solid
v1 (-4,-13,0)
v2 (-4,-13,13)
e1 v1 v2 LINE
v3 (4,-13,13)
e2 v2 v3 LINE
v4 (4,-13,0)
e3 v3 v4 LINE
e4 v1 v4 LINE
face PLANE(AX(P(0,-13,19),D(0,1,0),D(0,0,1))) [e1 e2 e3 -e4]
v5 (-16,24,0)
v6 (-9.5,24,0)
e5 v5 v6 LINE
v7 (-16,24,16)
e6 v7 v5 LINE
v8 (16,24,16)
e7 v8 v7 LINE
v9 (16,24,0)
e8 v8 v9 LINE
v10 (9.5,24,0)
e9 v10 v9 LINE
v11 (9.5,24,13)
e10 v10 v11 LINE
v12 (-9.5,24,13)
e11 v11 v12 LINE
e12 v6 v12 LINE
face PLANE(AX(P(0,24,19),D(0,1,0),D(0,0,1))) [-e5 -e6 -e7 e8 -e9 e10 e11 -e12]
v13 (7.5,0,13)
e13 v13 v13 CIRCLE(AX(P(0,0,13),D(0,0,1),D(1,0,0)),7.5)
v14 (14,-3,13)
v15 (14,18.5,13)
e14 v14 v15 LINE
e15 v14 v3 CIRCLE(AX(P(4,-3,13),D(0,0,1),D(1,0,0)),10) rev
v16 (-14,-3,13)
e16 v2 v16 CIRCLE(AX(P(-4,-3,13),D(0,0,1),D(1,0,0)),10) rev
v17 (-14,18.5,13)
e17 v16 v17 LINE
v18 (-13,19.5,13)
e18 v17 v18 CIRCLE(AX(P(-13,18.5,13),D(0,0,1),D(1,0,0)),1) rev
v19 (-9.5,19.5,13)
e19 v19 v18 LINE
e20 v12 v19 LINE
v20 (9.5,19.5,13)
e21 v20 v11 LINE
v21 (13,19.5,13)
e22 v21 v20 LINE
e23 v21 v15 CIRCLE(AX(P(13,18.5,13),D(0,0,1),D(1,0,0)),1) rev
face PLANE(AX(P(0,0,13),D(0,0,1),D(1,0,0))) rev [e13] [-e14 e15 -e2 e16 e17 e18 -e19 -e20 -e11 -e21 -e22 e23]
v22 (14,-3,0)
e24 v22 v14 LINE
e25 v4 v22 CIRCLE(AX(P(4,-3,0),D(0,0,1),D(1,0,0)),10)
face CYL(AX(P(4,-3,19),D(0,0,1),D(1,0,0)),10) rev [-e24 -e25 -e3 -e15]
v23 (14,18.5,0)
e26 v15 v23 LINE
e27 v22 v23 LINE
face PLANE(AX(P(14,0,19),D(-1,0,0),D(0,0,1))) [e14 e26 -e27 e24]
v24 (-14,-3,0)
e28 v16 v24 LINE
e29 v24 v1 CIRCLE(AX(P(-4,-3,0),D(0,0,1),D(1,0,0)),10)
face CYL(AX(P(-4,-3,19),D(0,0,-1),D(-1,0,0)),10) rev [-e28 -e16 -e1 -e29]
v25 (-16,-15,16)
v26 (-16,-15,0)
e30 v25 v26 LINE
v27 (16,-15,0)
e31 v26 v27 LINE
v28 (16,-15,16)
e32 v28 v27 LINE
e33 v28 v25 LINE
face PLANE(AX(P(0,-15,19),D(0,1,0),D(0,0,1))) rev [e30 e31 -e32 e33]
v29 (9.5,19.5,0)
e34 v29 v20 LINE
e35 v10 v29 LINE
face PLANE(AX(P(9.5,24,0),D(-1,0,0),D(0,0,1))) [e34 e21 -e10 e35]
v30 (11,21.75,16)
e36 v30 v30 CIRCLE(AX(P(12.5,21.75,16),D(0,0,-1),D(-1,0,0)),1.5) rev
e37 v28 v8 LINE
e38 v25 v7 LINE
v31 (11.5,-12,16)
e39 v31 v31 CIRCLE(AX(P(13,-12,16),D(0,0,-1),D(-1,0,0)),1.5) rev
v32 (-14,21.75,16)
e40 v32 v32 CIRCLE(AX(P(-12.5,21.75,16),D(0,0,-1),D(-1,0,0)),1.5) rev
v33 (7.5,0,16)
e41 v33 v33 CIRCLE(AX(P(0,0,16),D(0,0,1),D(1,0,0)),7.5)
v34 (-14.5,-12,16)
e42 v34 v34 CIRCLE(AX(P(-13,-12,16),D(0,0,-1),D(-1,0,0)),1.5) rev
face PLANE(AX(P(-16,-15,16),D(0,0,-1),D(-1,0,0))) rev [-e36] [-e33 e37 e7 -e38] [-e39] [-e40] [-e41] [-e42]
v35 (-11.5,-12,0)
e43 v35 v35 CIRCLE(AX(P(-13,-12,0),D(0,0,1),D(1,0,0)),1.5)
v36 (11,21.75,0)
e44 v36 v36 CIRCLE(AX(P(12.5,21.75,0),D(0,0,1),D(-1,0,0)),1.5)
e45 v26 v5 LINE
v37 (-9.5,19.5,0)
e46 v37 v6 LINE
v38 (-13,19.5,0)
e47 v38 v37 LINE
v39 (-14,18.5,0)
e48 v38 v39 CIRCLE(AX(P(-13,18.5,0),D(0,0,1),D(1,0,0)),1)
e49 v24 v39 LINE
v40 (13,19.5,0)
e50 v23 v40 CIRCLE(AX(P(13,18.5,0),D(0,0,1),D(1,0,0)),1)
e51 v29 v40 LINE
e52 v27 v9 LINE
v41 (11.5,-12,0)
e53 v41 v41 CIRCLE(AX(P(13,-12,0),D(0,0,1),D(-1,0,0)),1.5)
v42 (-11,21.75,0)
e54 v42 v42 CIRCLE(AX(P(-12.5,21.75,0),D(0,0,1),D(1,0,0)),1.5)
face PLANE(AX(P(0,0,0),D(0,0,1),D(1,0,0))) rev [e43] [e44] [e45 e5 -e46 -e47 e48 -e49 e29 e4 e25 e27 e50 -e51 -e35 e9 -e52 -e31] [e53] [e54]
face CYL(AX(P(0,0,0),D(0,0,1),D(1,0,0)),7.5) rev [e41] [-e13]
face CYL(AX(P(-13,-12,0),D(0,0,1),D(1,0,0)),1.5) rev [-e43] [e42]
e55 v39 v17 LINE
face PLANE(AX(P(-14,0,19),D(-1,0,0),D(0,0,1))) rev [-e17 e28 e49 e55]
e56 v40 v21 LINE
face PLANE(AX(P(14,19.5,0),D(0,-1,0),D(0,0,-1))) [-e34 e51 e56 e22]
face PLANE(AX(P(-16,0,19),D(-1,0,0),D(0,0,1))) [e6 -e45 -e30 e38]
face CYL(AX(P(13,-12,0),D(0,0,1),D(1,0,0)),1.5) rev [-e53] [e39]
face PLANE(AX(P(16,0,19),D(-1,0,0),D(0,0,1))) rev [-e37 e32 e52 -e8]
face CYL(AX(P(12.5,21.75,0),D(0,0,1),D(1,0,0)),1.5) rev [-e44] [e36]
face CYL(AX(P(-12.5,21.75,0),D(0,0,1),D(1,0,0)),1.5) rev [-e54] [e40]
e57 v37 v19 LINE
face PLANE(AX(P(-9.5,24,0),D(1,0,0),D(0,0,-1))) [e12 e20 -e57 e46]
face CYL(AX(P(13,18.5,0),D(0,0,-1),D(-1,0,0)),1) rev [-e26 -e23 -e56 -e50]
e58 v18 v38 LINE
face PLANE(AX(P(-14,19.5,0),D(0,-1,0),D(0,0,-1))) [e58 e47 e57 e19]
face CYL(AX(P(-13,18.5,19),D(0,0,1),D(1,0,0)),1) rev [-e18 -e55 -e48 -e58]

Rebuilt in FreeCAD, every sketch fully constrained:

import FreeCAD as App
import Part
import Sketcher


def edges_at(feature, points):
    """Names of the edges that pass closest to the given points."""
    edges = feature.Shape.Edges
    near = lambda p: min(range(len(edges)), key=lambda i: edges[i].distToShape(Part.Vertex(*p))[0])
    return sorted({f"Edge{near(p) + 1}" for p in points})

doc = App.newDocument("Part")
params = doc.addObject("Spreadsheet::Sheet", "Params")
for row, (alias, value) in enumerate([
    ("sketch1_width", "32 mm"),
    ("sketch1_width2", "2 mm"),
    ("sketch1_height", "39 mm"),
    ("sketch1_height2", "37 mm"),
    ("pad1_length", "19 mm"),
    ("sketch2_width", "4.5 mm"),
    ("pad2_length", "19 mm"),
    ("fillet_radius", "10 mm"),
    ("fillet2_radius", "10 mm"),
    ("fillet3_radius", "1 mm"),
    ("sketch3_diameter", "3 mm"),
    ("pocket1_length", "19 mm"),
    ("sketch4_width", "32 mm"),
    ("sketch4_height", "3 mm"),
    ("sketch5_diameter", "3 mm"),
    ("sketch5_width", "32 mm"),
    ("sketch5_height", "39 mm"),
    ("pad3_length", "3 mm"),
    ("sketch6_diameter", "15 mm"),
], start=1):
    params.set(f"A{row}", alias)
    params.set(f"B{row}", "=" + value)
    params.setAlias(f"B{row}", alias)

body = doc.addObject("PartDesign::Body", "Body")

# Sketch on XY plane
sketch1 = doc.addObject("Sketcher::SketchObject", "Sketch")
body.addObject(sketch1)
sketch1.AttachmentSupport = (doc.XY_Plane, [""])
sketch1.MapMode = "FlatFace"
sketch1.addGeometry([
    Part.LineSegment(App.Vector(-16, 24, 0), App.Vector(-16, -15, 0)),  # 0
    Part.LineSegment(App.Vector(-16, -15, 0), App.Vector(16, -15, 0)),  # 1
    Part.LineSegment(App.Vector(16, -15, 0), App.Vector(16, 24, 0)),  # 2
    Part.LineSegment(App.Vector(16, 24, 0), App.Vector(14, 24, 0)),  # 3
    Part.LineSegment(App.Vector(14, 24, 0), App.Vector(14, -13, 0)),  # 4
    Part.LineSegment(App.Vector(14, -13, 0), App.Vector(-14, -13, 0)),  # 5
    Part.LineSegment(App.Vector(-14, -13, 0), App.Vector(-14, 24, 0)),  # 6
    Part.LineSegment(App.Vector(-14, 24, 0), App.Vector(-16, 24, 0)),  # 7
], False)
sketch1.addConstraint([
    Sketcher.Constraint("Coincident", 0, 2, 1, 1),
    Sketcher.Constraint("Coincident", 1, 2, 2, 1),
    Sketcher.Constraint("Coincident", 2, 2, 3, 1),
    Sketcher.Constraint("Coincident", 3, 2, 4, 1),
    Sketcher.Constraint("Coincident", 4, 2, 5, 1),
    Sketcher.Constraint("Coincident", 5, 2, 6, 1),
    Sketcher.Constraint("Coincident", 6, 2, 7, 1),
    Sketcher.Constraint("Coincident", 7, 2, 0, 1),
    Sketcher.Constraint("Vertical", 0),
    Sketcher.Constraint("Horizontal", 1),
    Sketcher.Constraint("Vertical", 2),
    Sketcher.Constraint("Horizontal", 3),
    Sketcher.Constraint("Vertical", 4),
    Sketcher.Constraint("Horizontal", 5),
    Sketcher.Constraint("Vertical", 6),
    Sketcher.Constraint("Horizontal", 7),
    Sketcher.Constraint("Symmetric", 3, 2, 6, 2, -2),
    Sketcher.Constraint("Equal", 3, 7),
    Sketcher.Constraint("DistanceX", 1, 1, 1, 2, 32.0),
    Sketcher.Constraint("DistanceX", 3, 2, 3, 1, 2.0),
    Sketcher.Constraint("DistanceY", 0, 2, 0, 1, 39.0),
    Sketcher.Constraint("DistanceY", 4, 2, 4, 1, 37.0),
    Sketcher.Constraint("DistanceY", 0, 2, -1, 1, 15.0),
])
sketch1.setExpression("Constraints[18]", "Params.sketch1_width")
sketch1.setExpression("Constraints[19]", "Params.sketch1_width2")
sketch1.setExpression("Constraints[20]", "Params.sketch1_height")
sketch1.setExpression("Constraints[21]", "Params.sketch1_height2")
pad1 = doc.addObject("PartDesign::Pad", "Pad")
body.addObject(pad1)
pad1.Profile = sketch1
pad1.setExpression("Length", "Params.pad1_length")

# Sketch on XY plane
sketch2 = doc.addObject("Sketcher::SketchObject", "Sketch001")
body.addObject(sketch2)
sketch2.AttachmentSupport = (doc.XY_Plane, [""])
sketch2.MapMode = "FlatFace"
sketch2.AttachmentOffset = App.Placement(App.Vector(0, 0, 19), App.Rotation())
sketch2.addGeometry([
    Part.LineSegment(App.Vector(-14, 24, 0), App.Vector(-14, 19.5, 0)),  # 0
    Part.LineSegment(App.Vector(-14, 19.5, 0), App.Vector(-9.5, 19.5, 0)),  # 1
    Part.LineSegment(App.Vector(-9.5, 19.5, 0), App.Vector(-9.5, 24, 0)),  # 2
    Part.LineSegment(App.Vector(-9.5, 24, 0), App.Vector(-14, 24, 0)),  # 3
    Part.LineSegment(App.Vector(9.5, 24, 0), App.Vector(9.5, 19.5, 0)),  # 4
    Part.LineSegment(App.Vector(9.5, 19.5, 0), App.Vector(14, 19.5, 0)),  # 5
    Part.LineSegment(App.Vector(14, 19.5, 0), App.Vector(14, 24, 0)),  # 6
    Part.LineSegment(App.Vector(14, 24, 0), App.Vector(9.5, 24, 0)),  # 7
], False)
sketch2.addConstraint([
    Sketcher.Constraint("Coincident", 0, 2, 1, 1),
    Sketcher.Constraint("Coincident", 1, 2, 2, 1),
    Sketcher.Constraint("Coincident", 2, 2, 3, 1),
    Sketcher.Constraint("Coincident", 3, 2, 0, 1),
    Sketcher.Constraint("Coincident", 4, 2, 5, 1),
    Sketcher.Constraint("Coincident", 5, 2, 6, 1),
    Sketcher.Constraint("Coincident", 6, 2, 7, 1),
    Sketcher.Constraint("Coincident", 7, 2, 4, 1),
    Sketcher.Constraint("Vertical", 0),
    Sketcher.Constraint("Horizontal", 1),
    Sketcher.Constraint("Vertical", 2),
    Sketcher.Constraint("Horizontal", 3),
    Sketcher.Constraint("Vertical", 4),
    Sketcher.Constraint("Horizontal", 5),
    Sketcher.Constraint("Vertical", 6),
    Sketcher.Constraint("Horizontal", 7),
    Sketcher.Constraint("Symmetric", 1, 2, 4, 2, -2),
    Sketcher.Constraint("Symmetric", 3, 2, 6, 2, -2),
    Sketcher.Constraint("Equal", 7, 0),
    Sketcher.Constraint("DistanceX", 1, 1, 1, 2, 4.5),
    Sketcher.Constraint("DistanceX", 0, 2, -1, 1, 14.0),
    Sketcher.Constraint("DistanceY", -1, 1, 2, 2, 24.0),
])
sketch2.setExpression("Constraints[19]", "Params.sketch2_width")
pad2 = doc.addObject("PartDesign::Pad", "Pad001")
body.addObject(pad2)
pad2.Profile = sketch2
pad2.setExpression("Length", "Params.pad2_length")
pad2.Reversed = True
doc.recompute()

fillet = doc.addObject("PartDesign::Fillet", "Fillet")
body.addObject(fillet)
fillet.Base = (pad2, edges_at(pad2, [(-14, -13, 9.5)]))
fillet.setExpression("Radius", "Params.fillet_radius")
doc.recompute()

fillet2 = doc.addObject("PartDesign::Fillet", "Fillet001")
body.addObject(fillet2)
fillet2.Base = (fillet, edges_at(fillet, [(14, -13, 9.5)]))
fillet2.setExpression("Radius", "Params.fillet2_radius")
doc.recompute()

fillet3 = doc.addObject("PartDesign::Fillet", "Fillet002")
body.addObject(fillet3)
fillet3.Base = (fillet2, edges_at(fillet2, [(-14, 19.5, 9.5), (14, 19.5, 9.5)]))
fillet3.setExpression("Radius", "Params.fillet3_radius")

# Sketch on XY plane
sketch3 = doc.addObject("Sketcher::SketchObject", "Sketch002")
body.addObject(sketch3)
sketch3.AttachmentSupport = (doc.XY_Plane, [""])
sketch3.MapMode = "FlatFace"
sketch3.AttachmentOffset = App.Placement(App.Vector(0, 0, 19), App.Rotation())
sketch3.addGeometry([
    Part.Circle(App.Vector(-12.5, 21.8, 0), App.Vector(0, 0, 1), 1.5),
    Part.Circle(App.Vector(-13, -12, 0), App.Vector(0, 0, 1), 1.5),
    Part.Circle(App.Vector(12.5, 21.8, 0), App.Vector(0, 0, 1), 1.5),
    Part.Circle(App.Vector(13, -12, 0), App.Vector(0, 0, 1), 1.5),
], False)
sketch3.addConstraint([
    Sketcher.Constraint("Equal", 0, 1),
    Sketcher.Constraint("Equal", 1, 2),
    Sketcher.Constraint("Equal", 2, 3),
    Sketcher.Constraint("Symmetric", 0, 3, 2, 3, -2),
    Sketcher.Constraint("Symmetric", 1, 3, 3, 3, -2),
    Sketcher.Constraint("Diameter", 0, 3.0),
    Sketcher.Constraint("DistanceX", 1, 3, -1, 1, 13.0),
    Sketcher.Constraint("DistanceY", 1, 3, -1, 1, 12.0),
    Sketcher.Constraint("DistanceX", 0, 3, 2, 3, 25.0),
    Sketcher.Constraint("DistanceY", -1, 1, 0, 3, 21.75),
])
sketch3.setExpression("Constraints[5]", "Params.sketch3_diameter")
pocket1 = doc.addObject("PartDesign::Pocket", "Pocket")
body.addObject(pocket1)
pocket1.Profile = sketch3
pocket1.setExpression("Length", "Params.pocket1_length")

# Sketch on XZ plane
sketch4 = doc.addObject("Sketcher::SketchObject", "Sketch003")
body.addObject(sketch4)
sketch4.AttachmentSupport = (doc.XZ_Plane, [""])
sketch4.MapMode = "FlatFace"
sketch4.AttachmentOffset = App.Placement(App.Vector(0, 0, -24), App.Rotation())
sketch4.addGeometry([
    Part.LineSegment(App.Vector(-16, 16, 0), App.Vector(-16, 19, 0)),
    Part.LineSegment(App.Vector(-16, 19, 0), App.Vector(16, 19, 0)),
    Part.LineSegment(App.Vector(16, 19, 0), App.Vector(16, 16, 0)),
    Part.LineSegment(App.Vector(16, 16, 0), App.Vector(-16, 16, 0)),
], False)
sketch4.addConstraint([
    Sketcher.Constraint("Coincident", 0, 2, 1, 1),
    Sketcher.Constraint("Coincident", 1, 2, 2, 1),
    Sketcher.Constraint("Coincident", 2, 2, 3, 1),
    Sketcher.Constraint("Coincident", 3, 2, 0, 1),
    Sketcher.Constraint("Vertical", 0),
    Sketcher.Constraint("Horizontal", 1),
    Sketcher.Constraint("Vertical", 2),
    Sketcher.Constraint("Horizontal", 3),
    Sketcher.Constraint("DistanceX", 1, 1, 1, 2, 32.0),
    Sketcher.Constraint("DistanceY", 0, 1, 0, 2, 3.0),
    Sketcher.Constraint("DistanceX", 0, 2, -1, 1, 16.0),
    Sketcher.Constraint("DistanceY", -1, 1, 0, 2, 19.0),
])
sketch4.setExpression("Constraints[8]", "Params.sketch4_width")
sketch4.setExpression("Constraints[9]", "Params.sketch4_height")
pocket2 = doc.addObject("PartDesign::Pocket", "Pocket001")
body.addObject(pocket2)
pocket2.Profile = sketch4
pocket2.Type = "ThroughAll"
pocket2.Reversed = True

# Sketch on XY plane
sketch5 = doc.addObject("Sketcher::SketchObject", "Sketch004")
body.addObject(sketch5)
sketch5.AttachmentSupport = (doc.XY_Plane, [""])
sketch5.MapMode = "FlatFace"
sketch5.AttachmentOffset = App.Placement(App.Vector(0, 0, 16), App.Rotation())
sketch5.addGeometry([
    Part.LineSegment(App.Vector(-16, 24, 0), App.Vector(-16, -15, 0)),  # 0
    Part.LineSegment(App.Vector(-16, -15, 0), App.Vector(16, -15, 0)),  # 1
    Part.LineSegment(App.Vector(16, -15, 0), App.Vector(16, 24, 0)),  # 2
    Part.LineSegment(App.Vector(16, 24, 0), App.Vector(-16, 24, 0)),  # 3
    Part.Circle(App.Vector(-13, -12, 0), App.Vector(0, 0, 1), 1.5),  # 4
    Part.Circle(App.Vector(13, -12, 0), App.Vector(0, 0, 1), 1.5),  # 5
    Part.Circle(App.Vector(-12.5, 21.8, 0), App.Vector(0, 0, 1), 1.5),  # 6
    Part.Circle(App.Vector(12.5, 21.8, 0), App.Vector(0, 0, 1), 1.5),  # 7
], False)
sketch5.addConstraint([
    Sketcher.Constraint("Coincident", 0, 2, 1, 1),
    Sketcher.Constraint("Coincident", 1, 2, 2, 1),
    Sketcher.Constraint("Coincident", 2, 2, 3, 1),
    Sketcher.Constraint("Coincident", 3, 2, 0, 1),
    Sketcher.Constraint("Vertical", 0),
    Sketcher.Constraint("Horizontal", 1),
    Sketcher.Constraint("Vertical", 2),
    Sketcher.Constraint("Horizontal", 3),
    Sketcher.Constraint("Equal", 4, 5),
    Sketcher.Constraint("Equal", 5, 6),
    Sketcher.Constraint("Equal", 6, 7),
    Sketcher.Constraint("Symmetric", 4, 3, 5, 3, -2),
    Sketcher.Constraint("Symmetric", 6, 3, 7, 3, -2),
    Sketcher.Constraint("Diameter", 4, 3.0),
    Sketcher.Constraint("DistanceX", 1, 1, 1, 2, 32.0),
    Sketcher.Constraint("DistanceY", 0, 2, 0, 1, 39.0),
    Sketcher.Constraint("DistanceX", 4, 3, -1, 1, 13.0),
    Sketcher.Constraint("DistanceY", 4, 3, -1, 1, 12.0),
    Sketcher.Constraint("DistanceX", 0, 2, -1, 1, 16.0),
    Sketcher.Constraint("DistanceY", 0, 2, -1, 1, 15.0),
    Sketcher.Constraint("DistanceX", 6, 3, 7, 3, 25.0),
    Sketcher.Constraint("DistanceY", -1, 1, 6, 3, 21.75),
])
sketch5.setExpression("Constraints[13]", "Params.sketch5_diameter")
sketch5.setExpression("Constraints[14]", "Params.sketch5_width")
sketch5.setExpression("Constraints[15]", "Params.sketch5_height")
pad3 = doc.addObject("PartDesign::Pad", "Pad002")
body.addObject(pad3)
pad3.Profile = sketch5
pad3.setExpression("Length", "Params.pad3_length")
pad3.Reversed = True

# Sketch on XY plane
sketch6 = doc.addObject("Sketcher::SketchObject", "Sketch005")
body.addObject(sketch6)
sketch6.AttachmentSupport = (doc.XY_Plane, [""])
sketch6.MapMode = "FlatFace"
sketch6.AttachmentOffset = App.Placement(App.Vector(0, 0, 16), App.Rotation())
sketch6.addGeometry(Part.Circle(App.Vector(0, 0, 0), App.Vector(0, 0, 1), 8), False)
sketch6.addConstraint([
    Sketcher.Constraint("Coincident", 0, 3, -1, 1),
    Sketcher.Constraint("Diameter", 0, 15.0),
])
sketch6.setExpression("Constraints[1]", "Params.sketch6_diameter")
pocket3 = doc.addObject("PartDesign::Pocket", "Pocket002")
body.addObject(pocket3)
pocket3.Profile = sketch6
pocket3.Type = "ThroughAll"

doc.recompute()
